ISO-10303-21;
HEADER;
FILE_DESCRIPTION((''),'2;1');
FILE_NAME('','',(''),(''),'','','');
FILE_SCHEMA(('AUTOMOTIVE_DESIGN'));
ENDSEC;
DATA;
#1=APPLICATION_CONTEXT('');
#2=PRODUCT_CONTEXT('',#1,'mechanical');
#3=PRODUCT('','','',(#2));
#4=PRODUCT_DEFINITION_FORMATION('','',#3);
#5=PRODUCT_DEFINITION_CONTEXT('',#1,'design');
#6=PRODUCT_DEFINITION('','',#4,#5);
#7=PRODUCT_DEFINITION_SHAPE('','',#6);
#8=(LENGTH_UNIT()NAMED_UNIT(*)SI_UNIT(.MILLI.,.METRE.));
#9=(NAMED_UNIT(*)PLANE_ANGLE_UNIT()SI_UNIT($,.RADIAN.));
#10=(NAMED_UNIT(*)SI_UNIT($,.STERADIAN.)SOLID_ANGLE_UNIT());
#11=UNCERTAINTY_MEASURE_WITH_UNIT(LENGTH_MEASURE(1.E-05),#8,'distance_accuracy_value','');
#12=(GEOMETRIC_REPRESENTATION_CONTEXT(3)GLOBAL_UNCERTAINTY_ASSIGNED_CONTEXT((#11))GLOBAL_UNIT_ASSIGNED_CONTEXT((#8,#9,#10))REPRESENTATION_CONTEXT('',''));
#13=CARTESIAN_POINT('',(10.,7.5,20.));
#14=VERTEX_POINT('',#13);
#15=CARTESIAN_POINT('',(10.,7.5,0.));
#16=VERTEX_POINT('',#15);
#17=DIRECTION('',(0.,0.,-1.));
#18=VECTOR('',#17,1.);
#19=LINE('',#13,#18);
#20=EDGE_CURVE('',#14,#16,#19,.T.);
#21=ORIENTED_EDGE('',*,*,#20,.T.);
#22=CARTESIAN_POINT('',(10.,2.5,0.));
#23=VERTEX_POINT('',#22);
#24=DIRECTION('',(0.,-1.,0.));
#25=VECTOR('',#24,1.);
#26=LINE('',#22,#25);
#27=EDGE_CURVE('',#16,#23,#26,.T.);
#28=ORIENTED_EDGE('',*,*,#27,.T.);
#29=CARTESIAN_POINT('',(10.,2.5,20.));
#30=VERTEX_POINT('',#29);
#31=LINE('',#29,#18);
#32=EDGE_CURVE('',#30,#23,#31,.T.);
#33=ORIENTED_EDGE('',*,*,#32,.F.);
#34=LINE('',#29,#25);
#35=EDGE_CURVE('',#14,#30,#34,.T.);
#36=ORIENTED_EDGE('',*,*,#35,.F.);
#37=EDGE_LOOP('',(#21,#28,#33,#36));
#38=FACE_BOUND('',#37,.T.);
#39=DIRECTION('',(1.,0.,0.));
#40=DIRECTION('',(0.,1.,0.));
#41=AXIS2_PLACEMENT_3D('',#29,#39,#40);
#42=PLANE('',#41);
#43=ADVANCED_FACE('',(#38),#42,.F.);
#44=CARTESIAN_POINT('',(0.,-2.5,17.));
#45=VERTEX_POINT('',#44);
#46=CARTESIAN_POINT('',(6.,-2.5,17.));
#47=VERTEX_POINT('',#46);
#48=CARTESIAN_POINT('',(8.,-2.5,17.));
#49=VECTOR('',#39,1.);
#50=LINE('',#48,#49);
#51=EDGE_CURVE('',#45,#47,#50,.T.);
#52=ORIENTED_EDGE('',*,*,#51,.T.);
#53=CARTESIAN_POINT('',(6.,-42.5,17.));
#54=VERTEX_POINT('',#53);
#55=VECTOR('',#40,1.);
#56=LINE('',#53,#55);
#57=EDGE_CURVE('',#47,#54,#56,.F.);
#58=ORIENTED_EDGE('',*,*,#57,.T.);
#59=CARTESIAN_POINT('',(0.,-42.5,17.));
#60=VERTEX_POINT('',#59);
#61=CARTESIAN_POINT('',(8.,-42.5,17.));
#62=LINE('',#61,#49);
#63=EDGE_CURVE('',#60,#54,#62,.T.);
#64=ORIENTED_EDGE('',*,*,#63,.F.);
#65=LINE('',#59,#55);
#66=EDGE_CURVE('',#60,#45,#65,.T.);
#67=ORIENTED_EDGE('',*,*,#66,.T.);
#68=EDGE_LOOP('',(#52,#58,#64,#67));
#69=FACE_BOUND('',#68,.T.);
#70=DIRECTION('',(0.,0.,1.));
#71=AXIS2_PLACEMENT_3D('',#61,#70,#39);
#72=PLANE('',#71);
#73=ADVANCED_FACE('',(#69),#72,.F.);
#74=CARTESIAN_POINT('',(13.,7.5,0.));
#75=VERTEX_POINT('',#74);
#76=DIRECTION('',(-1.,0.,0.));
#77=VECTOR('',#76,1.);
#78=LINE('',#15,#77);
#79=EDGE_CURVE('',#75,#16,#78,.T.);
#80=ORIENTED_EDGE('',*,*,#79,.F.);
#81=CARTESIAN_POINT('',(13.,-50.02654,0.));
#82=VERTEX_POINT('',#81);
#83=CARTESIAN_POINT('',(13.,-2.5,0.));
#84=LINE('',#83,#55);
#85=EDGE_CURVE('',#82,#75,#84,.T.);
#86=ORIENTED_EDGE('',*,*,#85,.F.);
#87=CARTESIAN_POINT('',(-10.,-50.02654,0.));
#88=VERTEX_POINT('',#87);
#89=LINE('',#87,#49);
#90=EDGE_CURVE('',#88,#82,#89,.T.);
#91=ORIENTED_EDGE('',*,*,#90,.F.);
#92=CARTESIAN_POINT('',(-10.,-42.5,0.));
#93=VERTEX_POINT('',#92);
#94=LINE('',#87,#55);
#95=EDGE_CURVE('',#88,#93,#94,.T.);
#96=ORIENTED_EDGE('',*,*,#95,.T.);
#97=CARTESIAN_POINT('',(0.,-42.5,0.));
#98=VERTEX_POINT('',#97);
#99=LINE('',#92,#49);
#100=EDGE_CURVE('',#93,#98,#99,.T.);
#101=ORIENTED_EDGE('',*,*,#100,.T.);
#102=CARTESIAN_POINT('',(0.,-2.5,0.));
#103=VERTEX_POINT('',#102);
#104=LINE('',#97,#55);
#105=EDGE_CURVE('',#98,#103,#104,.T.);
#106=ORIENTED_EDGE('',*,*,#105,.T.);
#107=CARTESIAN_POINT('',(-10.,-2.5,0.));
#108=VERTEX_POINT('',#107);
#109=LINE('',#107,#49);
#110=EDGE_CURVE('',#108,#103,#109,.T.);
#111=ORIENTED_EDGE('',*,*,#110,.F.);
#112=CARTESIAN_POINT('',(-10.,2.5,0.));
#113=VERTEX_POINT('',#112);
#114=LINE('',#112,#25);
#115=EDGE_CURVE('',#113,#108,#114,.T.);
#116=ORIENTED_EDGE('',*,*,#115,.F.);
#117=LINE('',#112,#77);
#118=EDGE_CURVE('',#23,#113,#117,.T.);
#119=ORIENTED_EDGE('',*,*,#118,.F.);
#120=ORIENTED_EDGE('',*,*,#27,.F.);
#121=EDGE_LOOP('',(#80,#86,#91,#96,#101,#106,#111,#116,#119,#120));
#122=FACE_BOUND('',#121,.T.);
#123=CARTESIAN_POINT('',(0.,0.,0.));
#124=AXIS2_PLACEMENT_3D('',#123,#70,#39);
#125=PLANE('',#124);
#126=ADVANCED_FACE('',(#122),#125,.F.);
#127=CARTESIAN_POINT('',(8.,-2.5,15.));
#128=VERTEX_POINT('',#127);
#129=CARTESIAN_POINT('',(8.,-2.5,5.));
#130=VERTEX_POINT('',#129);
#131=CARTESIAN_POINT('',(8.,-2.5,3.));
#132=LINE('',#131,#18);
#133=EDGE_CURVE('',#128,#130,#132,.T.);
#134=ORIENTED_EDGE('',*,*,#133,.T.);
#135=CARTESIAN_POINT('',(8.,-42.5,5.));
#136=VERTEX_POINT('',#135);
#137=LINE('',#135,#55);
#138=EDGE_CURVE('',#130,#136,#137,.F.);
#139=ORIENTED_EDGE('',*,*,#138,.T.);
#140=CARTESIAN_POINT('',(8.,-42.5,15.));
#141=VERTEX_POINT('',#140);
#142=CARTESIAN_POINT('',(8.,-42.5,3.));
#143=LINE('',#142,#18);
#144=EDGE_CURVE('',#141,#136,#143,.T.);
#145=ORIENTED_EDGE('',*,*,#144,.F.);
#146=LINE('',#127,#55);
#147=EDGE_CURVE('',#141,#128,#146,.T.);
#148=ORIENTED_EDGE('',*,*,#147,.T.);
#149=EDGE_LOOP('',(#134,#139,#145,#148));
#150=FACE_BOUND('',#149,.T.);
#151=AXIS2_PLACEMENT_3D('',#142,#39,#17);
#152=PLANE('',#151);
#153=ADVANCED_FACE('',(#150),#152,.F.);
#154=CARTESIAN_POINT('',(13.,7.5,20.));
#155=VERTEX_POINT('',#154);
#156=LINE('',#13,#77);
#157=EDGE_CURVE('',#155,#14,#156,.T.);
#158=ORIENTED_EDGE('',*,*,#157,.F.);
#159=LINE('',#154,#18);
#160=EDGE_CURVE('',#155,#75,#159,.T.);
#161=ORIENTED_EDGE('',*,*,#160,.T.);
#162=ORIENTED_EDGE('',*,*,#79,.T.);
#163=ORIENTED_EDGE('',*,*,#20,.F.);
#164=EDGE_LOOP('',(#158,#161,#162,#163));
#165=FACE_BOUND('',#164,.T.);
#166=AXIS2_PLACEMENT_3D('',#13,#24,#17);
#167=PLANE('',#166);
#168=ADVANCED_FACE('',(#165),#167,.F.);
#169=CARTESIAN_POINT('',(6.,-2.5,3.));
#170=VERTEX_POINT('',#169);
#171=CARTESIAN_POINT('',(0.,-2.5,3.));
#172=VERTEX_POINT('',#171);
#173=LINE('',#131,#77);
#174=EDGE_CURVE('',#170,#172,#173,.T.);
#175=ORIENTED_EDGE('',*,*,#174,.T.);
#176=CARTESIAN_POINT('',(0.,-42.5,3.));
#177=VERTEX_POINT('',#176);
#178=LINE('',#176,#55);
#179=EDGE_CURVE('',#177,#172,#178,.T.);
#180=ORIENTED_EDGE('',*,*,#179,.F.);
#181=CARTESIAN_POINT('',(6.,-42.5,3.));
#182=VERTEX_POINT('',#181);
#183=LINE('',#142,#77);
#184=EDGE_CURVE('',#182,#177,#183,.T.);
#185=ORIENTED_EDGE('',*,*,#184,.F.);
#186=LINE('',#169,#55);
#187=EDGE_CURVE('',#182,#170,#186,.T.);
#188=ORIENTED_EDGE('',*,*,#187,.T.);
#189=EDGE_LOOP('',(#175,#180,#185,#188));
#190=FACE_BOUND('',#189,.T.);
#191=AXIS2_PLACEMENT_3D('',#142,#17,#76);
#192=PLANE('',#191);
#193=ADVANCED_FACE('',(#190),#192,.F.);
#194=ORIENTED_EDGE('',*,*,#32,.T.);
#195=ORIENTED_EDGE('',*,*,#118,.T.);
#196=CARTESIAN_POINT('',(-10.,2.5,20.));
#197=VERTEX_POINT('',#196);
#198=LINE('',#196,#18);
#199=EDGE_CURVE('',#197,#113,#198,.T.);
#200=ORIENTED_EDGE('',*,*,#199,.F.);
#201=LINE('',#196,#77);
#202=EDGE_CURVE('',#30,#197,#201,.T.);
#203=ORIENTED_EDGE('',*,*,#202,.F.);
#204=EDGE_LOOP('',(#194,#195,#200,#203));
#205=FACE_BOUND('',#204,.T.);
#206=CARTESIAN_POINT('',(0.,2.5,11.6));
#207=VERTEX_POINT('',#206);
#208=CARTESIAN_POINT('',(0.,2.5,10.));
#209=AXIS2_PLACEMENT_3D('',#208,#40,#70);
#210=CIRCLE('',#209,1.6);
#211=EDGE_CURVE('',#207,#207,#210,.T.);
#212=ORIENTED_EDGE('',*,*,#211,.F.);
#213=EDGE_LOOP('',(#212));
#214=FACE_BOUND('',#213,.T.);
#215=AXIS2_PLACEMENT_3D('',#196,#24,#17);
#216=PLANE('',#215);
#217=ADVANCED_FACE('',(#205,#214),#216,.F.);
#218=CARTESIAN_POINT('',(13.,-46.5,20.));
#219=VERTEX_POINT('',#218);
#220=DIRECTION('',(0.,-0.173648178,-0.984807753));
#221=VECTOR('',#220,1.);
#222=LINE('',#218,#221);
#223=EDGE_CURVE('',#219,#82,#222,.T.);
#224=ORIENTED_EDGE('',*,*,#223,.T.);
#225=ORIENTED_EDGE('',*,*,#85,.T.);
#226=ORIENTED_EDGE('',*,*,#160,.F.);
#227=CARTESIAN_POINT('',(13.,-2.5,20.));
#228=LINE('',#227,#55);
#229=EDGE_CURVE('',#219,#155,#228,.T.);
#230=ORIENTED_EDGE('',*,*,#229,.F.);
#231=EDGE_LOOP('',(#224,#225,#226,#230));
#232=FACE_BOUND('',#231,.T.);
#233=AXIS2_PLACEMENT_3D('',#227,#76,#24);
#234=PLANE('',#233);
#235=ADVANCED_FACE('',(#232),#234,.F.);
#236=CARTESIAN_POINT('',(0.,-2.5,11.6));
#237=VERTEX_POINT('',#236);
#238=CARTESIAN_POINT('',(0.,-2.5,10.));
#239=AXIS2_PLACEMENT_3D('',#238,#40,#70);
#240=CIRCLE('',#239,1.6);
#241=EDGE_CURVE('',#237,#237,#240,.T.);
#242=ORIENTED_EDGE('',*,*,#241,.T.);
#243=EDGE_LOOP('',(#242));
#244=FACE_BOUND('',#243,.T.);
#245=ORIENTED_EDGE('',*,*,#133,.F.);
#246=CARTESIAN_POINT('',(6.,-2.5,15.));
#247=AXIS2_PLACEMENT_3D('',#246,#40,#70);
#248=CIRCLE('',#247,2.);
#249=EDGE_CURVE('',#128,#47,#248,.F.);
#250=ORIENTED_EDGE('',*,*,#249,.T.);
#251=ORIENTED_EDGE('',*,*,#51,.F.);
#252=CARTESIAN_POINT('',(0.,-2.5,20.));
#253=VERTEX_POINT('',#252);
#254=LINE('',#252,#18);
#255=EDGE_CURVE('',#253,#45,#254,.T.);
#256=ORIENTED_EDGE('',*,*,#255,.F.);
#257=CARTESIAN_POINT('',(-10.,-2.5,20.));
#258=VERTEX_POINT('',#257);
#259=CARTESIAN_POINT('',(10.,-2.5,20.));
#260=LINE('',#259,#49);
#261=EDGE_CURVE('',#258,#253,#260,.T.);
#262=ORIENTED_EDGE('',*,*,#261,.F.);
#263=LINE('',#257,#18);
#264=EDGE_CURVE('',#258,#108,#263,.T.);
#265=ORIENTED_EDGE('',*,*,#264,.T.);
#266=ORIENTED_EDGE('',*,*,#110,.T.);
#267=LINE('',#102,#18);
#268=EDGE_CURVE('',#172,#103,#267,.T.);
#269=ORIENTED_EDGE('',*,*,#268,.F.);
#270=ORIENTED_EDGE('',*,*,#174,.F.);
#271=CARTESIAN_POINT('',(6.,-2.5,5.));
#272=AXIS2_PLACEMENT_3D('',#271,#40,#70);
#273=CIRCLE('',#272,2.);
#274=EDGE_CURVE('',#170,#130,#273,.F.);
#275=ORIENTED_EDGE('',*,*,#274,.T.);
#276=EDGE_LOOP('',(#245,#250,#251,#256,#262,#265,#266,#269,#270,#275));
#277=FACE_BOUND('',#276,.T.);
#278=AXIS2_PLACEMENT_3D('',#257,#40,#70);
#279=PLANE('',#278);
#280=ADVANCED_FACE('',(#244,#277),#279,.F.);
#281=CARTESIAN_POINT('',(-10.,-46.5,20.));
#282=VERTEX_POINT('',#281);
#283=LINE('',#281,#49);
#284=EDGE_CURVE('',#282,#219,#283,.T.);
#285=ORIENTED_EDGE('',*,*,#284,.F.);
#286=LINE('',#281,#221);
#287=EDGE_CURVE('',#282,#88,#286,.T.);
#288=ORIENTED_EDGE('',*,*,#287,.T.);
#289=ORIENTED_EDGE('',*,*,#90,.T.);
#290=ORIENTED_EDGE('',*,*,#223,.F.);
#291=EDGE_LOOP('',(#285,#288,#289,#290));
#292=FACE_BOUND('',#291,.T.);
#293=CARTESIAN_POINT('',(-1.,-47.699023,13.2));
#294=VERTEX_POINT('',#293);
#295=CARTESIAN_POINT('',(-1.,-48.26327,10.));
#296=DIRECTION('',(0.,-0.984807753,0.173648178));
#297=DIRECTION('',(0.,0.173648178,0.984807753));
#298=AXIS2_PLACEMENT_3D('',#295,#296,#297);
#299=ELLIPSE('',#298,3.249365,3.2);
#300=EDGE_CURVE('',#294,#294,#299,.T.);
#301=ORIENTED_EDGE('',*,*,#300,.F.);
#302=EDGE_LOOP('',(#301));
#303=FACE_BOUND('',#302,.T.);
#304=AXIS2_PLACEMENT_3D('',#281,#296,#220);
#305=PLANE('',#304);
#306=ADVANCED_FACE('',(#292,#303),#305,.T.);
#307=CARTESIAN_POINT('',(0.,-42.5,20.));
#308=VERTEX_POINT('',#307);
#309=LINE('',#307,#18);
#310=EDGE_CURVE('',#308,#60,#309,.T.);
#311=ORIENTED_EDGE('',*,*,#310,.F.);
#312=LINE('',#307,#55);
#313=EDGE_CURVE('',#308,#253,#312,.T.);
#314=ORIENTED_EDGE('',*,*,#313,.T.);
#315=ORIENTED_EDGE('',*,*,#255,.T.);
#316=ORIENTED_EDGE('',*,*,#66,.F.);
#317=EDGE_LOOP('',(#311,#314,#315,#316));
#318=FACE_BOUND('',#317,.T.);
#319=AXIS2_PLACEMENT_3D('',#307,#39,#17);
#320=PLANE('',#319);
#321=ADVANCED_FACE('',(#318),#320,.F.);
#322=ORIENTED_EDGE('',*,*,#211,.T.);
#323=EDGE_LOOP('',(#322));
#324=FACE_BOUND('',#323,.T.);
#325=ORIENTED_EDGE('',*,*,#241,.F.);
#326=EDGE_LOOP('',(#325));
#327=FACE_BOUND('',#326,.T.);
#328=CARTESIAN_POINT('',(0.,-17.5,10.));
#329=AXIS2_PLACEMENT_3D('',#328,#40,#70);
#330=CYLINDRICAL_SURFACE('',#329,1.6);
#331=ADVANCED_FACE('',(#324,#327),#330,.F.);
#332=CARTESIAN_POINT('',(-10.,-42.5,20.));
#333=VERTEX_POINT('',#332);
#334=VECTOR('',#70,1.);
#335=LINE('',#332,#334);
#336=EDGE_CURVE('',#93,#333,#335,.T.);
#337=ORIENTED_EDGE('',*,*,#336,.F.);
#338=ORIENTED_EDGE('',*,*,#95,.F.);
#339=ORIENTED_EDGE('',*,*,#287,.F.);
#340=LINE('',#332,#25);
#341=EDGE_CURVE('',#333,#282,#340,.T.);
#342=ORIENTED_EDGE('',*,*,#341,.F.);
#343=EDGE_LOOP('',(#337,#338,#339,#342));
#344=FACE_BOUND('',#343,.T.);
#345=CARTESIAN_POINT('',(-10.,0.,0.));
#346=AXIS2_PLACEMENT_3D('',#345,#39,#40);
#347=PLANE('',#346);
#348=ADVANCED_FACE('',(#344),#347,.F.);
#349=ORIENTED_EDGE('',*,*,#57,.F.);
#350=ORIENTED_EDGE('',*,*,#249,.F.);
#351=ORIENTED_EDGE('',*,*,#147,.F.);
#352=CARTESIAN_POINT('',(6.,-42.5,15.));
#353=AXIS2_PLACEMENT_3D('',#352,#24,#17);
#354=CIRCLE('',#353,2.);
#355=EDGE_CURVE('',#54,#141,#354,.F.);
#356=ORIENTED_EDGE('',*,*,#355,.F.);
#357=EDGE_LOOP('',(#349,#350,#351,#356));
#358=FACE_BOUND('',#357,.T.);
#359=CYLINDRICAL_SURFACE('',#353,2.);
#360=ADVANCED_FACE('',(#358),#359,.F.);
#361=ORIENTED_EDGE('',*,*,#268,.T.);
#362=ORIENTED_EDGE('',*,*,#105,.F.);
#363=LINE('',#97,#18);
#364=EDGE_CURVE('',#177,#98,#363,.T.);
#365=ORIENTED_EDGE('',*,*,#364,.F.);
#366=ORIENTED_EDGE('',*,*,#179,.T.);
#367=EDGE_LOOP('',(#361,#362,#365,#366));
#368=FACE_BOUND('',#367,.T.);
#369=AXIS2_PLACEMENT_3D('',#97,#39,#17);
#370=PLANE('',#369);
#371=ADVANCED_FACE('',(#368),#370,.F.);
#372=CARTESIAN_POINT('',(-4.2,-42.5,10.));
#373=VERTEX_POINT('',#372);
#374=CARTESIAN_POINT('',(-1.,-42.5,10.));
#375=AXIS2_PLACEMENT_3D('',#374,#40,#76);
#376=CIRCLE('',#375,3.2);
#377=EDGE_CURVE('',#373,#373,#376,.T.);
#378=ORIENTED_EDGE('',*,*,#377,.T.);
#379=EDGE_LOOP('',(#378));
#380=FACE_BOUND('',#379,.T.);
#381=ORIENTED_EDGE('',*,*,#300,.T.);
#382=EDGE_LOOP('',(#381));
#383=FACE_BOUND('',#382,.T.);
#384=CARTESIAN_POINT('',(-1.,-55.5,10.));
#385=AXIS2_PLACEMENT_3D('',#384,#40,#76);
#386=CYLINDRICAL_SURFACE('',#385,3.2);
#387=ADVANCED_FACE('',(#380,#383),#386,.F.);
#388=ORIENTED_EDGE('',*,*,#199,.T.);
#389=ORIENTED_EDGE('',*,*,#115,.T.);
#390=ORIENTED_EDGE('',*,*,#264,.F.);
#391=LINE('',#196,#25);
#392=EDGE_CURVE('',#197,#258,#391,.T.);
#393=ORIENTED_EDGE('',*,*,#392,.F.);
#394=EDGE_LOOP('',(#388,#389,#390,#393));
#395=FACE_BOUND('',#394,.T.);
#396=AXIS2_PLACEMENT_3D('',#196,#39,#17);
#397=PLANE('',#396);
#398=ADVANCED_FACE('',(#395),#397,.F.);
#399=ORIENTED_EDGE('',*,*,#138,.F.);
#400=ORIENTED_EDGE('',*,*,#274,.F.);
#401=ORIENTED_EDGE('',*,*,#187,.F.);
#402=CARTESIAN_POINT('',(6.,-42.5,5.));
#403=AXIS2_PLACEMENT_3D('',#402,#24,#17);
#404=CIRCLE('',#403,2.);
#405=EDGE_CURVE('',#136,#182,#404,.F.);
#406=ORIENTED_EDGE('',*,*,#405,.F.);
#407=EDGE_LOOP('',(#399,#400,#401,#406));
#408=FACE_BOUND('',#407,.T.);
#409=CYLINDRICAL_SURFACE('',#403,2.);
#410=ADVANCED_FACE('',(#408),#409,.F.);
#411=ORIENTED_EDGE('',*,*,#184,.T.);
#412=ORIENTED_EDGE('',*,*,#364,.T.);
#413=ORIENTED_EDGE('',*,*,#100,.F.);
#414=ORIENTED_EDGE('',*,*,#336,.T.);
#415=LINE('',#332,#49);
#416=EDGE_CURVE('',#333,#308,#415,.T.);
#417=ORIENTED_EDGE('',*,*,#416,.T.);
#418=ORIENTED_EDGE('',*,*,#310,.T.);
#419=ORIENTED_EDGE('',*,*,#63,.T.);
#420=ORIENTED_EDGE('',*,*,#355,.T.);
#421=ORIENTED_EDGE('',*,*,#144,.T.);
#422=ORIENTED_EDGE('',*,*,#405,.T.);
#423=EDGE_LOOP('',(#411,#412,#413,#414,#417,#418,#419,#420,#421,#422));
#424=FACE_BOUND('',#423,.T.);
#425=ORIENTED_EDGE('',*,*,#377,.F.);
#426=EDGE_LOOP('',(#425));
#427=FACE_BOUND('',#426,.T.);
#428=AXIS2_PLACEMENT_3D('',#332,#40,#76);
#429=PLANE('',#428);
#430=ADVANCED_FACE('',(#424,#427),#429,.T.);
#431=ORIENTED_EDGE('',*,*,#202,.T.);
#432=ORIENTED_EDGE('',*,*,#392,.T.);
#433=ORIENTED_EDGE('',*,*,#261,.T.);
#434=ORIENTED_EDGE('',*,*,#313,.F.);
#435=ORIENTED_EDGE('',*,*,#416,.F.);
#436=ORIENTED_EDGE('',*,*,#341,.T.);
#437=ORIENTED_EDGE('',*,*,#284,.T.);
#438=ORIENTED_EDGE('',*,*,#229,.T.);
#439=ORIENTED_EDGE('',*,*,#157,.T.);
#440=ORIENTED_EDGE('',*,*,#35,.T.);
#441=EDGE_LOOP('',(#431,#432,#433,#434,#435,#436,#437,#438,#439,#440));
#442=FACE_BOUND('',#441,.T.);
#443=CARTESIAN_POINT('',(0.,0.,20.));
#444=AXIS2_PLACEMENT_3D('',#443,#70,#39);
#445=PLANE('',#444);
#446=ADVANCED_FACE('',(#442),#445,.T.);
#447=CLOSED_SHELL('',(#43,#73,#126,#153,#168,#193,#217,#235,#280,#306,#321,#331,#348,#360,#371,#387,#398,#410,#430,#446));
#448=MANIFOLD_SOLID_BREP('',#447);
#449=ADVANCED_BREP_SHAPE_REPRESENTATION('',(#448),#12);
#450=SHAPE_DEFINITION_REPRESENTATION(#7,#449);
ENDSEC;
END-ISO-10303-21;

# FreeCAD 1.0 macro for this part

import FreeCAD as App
import Part
import Sketcher

V = App.Vector
Q = App.Units.Quantity


def edges_at(feature, points):
    """Names of the edges that pass closest to the given points."""
    edges = feature.Shape.Edges
    near = lambda p: min(range(len(edges)), key=lambda i: edges[i].distToShape(Part.Vertex(*p))[0])
    return sorted({f"Edge{near(p) + 1}" for p in points})


def add_polygon(sketch, points):
    """Adds a closed chain of lines whose ends are joined by coincident constraints."""
    first, n = sketch.GeometryCount, len(points)
    for a, b in zip(points, points[1:] + points[:1]):
        sketch.addGeometry(Part.LineSegment(App.Vector(*a, 0), App.Vector(*b, 0)), False)
    for i in range(n):
        sketch.addConstraint(Sketcher.Constraint("Coincident", first + i, 2, first + (i + 1) % n, 1))

doc = App.newDocument("Part")
body = doc.addObject("PartDesign::Body", "Body")

# Sketch on XY plane
sketch1 = doc.addObject("Sketcher::SketchObject", "Sketch")
body.addObject(sketch1)
sketch1.AttachmentSupport = (doc.XY_Plane, [""])
sketch1.MapMode = "FlatFace"
add_polygon(sketch1, [(10, 2.5), (-10, 2.5), (-10, -2.5), (13, -2.5), (13, 7.5), (10, 7.5)])  # lines 0-5
sketch1.addConstraint([
    Sketcher.Constraint("Horizontal", 0),
    Sketcher.Constraint("Vertical", 1),
    Sketcher.Constraint("Horizontal", 2),
    Sketcher.Constraint("Vertical", 3),
    Sketcher.Constraint("Horizontal", 4),
    Sketcher.Constraint("Vertical", 5),
    Sketcher.Constraint("Symmetric", 1, 2, 5, 2, -1, 1),
    Sketcher.Constraint("Equal", 1, 5),
    Sketcher.Constraint("DistanceX", 0, 2, 0, 1, 20.0),
    Sketcher.Constraint("DistanceX", 2, 1, 2, 2, 23.0),
    Sketcher.Constraint("DistanceY", 1, 2, 1, 1, 5.0),
])
pad1 = doc.addObject("PartDesign::Pad", "Pad")
body.addObject(pad1)
pad1.Profile = sketch1
pad1.Length = 20

# Sketch on XZ plane
sketch2 = doc.addObject("Sketcher::SketchObject", "Sketch001")
body.addObject(sketch2)
sketch2.AttachmentSupport = (doc.XZ_Plane, [""])
sketch2.MapMode = "FlatFace"
sketch2.AttachmentOffset = App.Placement(V(0, 0, -2.5), App.Rotation())
sketch2.addGeometry(Part.Circle(V(0, 10, 0), V(0, 0, 1), 1.6), False)
sketch2.addConstraint([
    Sketcher.Constraint("PointOnObject", 0, 3, -2),
    Sketcher.Constraint("Diameter", 0, 3.2),
    Sketcher.Constraint("DistanceY", -1, 1, 0, 3, 10.0),
])
pocket1 = doc.addObject("PartDesign::Pocket", "Pocket")
body.addObject(pocket1)
pocket1.Profile = sketch2
pocket1.Length = 20
pocket1.Reversed = True

# Sketch on XZ plane
sketch3 = doc.addObject("Sketcher::SketchObject", "Sketch002")
body.addObject(sketch3)
sketch3.AttachmentSupport = (doc.XZ_Plane, [""])
sketch3.MapMode = "FlatFace"
sketch3.AttachmentOffset = App.Placement(V(0, 0, 2.5), App.Rotation())
add_polygon(sketch3, [(0, 0), (13, 0), (13, 20), (0, 20), (0, 17), (8, 17), (8, 3), (0, 3)])  # lines 0-7
sketch3.addConstraint([
    Sketcher.Constraint("Horizontal", 0),
    Sketcher.Constraint("Vertical", 1),
    Sketcher.Constraint("Horizontal", 2),
    Sketcher.Constraint("Vertical", 3),
    Sketcher.Constraint("Horizontal", 4),
    Sketcher.Constraint("Vertical", 5),
    Sketcher.Constraint("Horizontal", 6),
    Sketcher.Constraint("Vertical", 7),
    Sketcher.Constraint("Coincident", 7, 2, -1, 1),
    Sketcher.Constraint("PointOnObject", 2, 2, -2),
    Sketcher.Constraint("Equal", 3, 7),
    Sketcher.Constraint("DistanceX", 0, 1, 0, 2, 13.0),
    Sketcher.Constraint("DistanceX", 4, 1, 4, 2, 8.0),
    Sketcher.Constraint("DistanceY", 1, 1, 1, 2, 20.0),
    Sketcher.Constraint("DistanceY", 3, 2, 3, 1, 3.0),
])
pad2 = doc.addObject("PartDesign::Pad", "Pad001")
body.addObject(pad2)
pad2.Profile = sketch3
pad2.Length = 40
doc.recompute()

fillet = doc.addObject("PartDesign::Fillet", "Fillet")
body.addObject(fillet)
fillet.Base = (pad2, edges_at(pad2, [(8, -22.5, 17), (8, -22.5, 3)]))
fillet.Radius = 2

# Sketch on YZ plane
sketch4 = doc.addObject("Sketcher::SketchObject", "Sketch003")
body.addObject(sketch4)
sketch4.AttachmentSupport = (doc.YZ_Plane, [""])
sketch4.MapMode = "FlatFace"
sketch4.AttachmentOffset = App.Placement(V(0, 0, 13), App.Rotation())
add_polygon(sketch4, [(-42.5, 20), (-46.5, 20), (-50.02654, 0), (-42.5, 0)])  # lines 0-3
sketch4.addConstraint([
    Sketcher.Constraint("Horizontal", 0),
    Sketcher.Constraint("Horizontal", 2),
    Sketcher.Constraint("Vertical", 3),
    Sketcher.Constraint("PointOnObject", 1, 2, -1),
    Sketcher.Constraint("DistanceX", 0, 2, 0, 1, 4.0),
    Sketcher.Constraint("DistanceY", 3, 1, 3, 2, 20.0),
    Sketcher.Constraint("Angle", 1, Q("-100 deg")),
    Sketcher.Constraint("DistanceX", 0, 2, -1, 1, 46.5),
])
pad3 = doc.addObject("PartDesign::Pad", "Pad002")
body.addObject(pad3)
pad3.Profile = sketch4
pad3.Length = 23
pad3.Reversed = True

# Sketch on XZ plane
sketch5 = doc.addObject("Sketcher::SketchObject", "Sketch004")
body.addObject(sketch5)
sketch5.AttachmentSupport = (doc.XZ_Plane, [""])
sketch5.MapMode = "FlatFace"
sketch5.AttachmentOffset = App.Placement(V(0, 0, 42.5), App.Rotation())
sketch5.addGeometry(Part.Circle(V(-1, 10, 0), V(0, 0, 1), 3.2), False)
sketch5.addConstraint([
    Sketcher.Constraint("Diameter", 0, 6.4),
    Sketcher.Constraint("DistanceX", 0, 3, -1, 1, 1.0),
    Sketcher.Constraint("DistanceY", -1, 1, 0, 3, 10.0),
])
pocket2 = doc.addObject("PartDesign::Pocket", "Pocket001")
body.addObject(pocket2)
pocket2.Profile = sketch5
pocket2.Length = 13
pocket2.Reversed = True

doc.recompute()
